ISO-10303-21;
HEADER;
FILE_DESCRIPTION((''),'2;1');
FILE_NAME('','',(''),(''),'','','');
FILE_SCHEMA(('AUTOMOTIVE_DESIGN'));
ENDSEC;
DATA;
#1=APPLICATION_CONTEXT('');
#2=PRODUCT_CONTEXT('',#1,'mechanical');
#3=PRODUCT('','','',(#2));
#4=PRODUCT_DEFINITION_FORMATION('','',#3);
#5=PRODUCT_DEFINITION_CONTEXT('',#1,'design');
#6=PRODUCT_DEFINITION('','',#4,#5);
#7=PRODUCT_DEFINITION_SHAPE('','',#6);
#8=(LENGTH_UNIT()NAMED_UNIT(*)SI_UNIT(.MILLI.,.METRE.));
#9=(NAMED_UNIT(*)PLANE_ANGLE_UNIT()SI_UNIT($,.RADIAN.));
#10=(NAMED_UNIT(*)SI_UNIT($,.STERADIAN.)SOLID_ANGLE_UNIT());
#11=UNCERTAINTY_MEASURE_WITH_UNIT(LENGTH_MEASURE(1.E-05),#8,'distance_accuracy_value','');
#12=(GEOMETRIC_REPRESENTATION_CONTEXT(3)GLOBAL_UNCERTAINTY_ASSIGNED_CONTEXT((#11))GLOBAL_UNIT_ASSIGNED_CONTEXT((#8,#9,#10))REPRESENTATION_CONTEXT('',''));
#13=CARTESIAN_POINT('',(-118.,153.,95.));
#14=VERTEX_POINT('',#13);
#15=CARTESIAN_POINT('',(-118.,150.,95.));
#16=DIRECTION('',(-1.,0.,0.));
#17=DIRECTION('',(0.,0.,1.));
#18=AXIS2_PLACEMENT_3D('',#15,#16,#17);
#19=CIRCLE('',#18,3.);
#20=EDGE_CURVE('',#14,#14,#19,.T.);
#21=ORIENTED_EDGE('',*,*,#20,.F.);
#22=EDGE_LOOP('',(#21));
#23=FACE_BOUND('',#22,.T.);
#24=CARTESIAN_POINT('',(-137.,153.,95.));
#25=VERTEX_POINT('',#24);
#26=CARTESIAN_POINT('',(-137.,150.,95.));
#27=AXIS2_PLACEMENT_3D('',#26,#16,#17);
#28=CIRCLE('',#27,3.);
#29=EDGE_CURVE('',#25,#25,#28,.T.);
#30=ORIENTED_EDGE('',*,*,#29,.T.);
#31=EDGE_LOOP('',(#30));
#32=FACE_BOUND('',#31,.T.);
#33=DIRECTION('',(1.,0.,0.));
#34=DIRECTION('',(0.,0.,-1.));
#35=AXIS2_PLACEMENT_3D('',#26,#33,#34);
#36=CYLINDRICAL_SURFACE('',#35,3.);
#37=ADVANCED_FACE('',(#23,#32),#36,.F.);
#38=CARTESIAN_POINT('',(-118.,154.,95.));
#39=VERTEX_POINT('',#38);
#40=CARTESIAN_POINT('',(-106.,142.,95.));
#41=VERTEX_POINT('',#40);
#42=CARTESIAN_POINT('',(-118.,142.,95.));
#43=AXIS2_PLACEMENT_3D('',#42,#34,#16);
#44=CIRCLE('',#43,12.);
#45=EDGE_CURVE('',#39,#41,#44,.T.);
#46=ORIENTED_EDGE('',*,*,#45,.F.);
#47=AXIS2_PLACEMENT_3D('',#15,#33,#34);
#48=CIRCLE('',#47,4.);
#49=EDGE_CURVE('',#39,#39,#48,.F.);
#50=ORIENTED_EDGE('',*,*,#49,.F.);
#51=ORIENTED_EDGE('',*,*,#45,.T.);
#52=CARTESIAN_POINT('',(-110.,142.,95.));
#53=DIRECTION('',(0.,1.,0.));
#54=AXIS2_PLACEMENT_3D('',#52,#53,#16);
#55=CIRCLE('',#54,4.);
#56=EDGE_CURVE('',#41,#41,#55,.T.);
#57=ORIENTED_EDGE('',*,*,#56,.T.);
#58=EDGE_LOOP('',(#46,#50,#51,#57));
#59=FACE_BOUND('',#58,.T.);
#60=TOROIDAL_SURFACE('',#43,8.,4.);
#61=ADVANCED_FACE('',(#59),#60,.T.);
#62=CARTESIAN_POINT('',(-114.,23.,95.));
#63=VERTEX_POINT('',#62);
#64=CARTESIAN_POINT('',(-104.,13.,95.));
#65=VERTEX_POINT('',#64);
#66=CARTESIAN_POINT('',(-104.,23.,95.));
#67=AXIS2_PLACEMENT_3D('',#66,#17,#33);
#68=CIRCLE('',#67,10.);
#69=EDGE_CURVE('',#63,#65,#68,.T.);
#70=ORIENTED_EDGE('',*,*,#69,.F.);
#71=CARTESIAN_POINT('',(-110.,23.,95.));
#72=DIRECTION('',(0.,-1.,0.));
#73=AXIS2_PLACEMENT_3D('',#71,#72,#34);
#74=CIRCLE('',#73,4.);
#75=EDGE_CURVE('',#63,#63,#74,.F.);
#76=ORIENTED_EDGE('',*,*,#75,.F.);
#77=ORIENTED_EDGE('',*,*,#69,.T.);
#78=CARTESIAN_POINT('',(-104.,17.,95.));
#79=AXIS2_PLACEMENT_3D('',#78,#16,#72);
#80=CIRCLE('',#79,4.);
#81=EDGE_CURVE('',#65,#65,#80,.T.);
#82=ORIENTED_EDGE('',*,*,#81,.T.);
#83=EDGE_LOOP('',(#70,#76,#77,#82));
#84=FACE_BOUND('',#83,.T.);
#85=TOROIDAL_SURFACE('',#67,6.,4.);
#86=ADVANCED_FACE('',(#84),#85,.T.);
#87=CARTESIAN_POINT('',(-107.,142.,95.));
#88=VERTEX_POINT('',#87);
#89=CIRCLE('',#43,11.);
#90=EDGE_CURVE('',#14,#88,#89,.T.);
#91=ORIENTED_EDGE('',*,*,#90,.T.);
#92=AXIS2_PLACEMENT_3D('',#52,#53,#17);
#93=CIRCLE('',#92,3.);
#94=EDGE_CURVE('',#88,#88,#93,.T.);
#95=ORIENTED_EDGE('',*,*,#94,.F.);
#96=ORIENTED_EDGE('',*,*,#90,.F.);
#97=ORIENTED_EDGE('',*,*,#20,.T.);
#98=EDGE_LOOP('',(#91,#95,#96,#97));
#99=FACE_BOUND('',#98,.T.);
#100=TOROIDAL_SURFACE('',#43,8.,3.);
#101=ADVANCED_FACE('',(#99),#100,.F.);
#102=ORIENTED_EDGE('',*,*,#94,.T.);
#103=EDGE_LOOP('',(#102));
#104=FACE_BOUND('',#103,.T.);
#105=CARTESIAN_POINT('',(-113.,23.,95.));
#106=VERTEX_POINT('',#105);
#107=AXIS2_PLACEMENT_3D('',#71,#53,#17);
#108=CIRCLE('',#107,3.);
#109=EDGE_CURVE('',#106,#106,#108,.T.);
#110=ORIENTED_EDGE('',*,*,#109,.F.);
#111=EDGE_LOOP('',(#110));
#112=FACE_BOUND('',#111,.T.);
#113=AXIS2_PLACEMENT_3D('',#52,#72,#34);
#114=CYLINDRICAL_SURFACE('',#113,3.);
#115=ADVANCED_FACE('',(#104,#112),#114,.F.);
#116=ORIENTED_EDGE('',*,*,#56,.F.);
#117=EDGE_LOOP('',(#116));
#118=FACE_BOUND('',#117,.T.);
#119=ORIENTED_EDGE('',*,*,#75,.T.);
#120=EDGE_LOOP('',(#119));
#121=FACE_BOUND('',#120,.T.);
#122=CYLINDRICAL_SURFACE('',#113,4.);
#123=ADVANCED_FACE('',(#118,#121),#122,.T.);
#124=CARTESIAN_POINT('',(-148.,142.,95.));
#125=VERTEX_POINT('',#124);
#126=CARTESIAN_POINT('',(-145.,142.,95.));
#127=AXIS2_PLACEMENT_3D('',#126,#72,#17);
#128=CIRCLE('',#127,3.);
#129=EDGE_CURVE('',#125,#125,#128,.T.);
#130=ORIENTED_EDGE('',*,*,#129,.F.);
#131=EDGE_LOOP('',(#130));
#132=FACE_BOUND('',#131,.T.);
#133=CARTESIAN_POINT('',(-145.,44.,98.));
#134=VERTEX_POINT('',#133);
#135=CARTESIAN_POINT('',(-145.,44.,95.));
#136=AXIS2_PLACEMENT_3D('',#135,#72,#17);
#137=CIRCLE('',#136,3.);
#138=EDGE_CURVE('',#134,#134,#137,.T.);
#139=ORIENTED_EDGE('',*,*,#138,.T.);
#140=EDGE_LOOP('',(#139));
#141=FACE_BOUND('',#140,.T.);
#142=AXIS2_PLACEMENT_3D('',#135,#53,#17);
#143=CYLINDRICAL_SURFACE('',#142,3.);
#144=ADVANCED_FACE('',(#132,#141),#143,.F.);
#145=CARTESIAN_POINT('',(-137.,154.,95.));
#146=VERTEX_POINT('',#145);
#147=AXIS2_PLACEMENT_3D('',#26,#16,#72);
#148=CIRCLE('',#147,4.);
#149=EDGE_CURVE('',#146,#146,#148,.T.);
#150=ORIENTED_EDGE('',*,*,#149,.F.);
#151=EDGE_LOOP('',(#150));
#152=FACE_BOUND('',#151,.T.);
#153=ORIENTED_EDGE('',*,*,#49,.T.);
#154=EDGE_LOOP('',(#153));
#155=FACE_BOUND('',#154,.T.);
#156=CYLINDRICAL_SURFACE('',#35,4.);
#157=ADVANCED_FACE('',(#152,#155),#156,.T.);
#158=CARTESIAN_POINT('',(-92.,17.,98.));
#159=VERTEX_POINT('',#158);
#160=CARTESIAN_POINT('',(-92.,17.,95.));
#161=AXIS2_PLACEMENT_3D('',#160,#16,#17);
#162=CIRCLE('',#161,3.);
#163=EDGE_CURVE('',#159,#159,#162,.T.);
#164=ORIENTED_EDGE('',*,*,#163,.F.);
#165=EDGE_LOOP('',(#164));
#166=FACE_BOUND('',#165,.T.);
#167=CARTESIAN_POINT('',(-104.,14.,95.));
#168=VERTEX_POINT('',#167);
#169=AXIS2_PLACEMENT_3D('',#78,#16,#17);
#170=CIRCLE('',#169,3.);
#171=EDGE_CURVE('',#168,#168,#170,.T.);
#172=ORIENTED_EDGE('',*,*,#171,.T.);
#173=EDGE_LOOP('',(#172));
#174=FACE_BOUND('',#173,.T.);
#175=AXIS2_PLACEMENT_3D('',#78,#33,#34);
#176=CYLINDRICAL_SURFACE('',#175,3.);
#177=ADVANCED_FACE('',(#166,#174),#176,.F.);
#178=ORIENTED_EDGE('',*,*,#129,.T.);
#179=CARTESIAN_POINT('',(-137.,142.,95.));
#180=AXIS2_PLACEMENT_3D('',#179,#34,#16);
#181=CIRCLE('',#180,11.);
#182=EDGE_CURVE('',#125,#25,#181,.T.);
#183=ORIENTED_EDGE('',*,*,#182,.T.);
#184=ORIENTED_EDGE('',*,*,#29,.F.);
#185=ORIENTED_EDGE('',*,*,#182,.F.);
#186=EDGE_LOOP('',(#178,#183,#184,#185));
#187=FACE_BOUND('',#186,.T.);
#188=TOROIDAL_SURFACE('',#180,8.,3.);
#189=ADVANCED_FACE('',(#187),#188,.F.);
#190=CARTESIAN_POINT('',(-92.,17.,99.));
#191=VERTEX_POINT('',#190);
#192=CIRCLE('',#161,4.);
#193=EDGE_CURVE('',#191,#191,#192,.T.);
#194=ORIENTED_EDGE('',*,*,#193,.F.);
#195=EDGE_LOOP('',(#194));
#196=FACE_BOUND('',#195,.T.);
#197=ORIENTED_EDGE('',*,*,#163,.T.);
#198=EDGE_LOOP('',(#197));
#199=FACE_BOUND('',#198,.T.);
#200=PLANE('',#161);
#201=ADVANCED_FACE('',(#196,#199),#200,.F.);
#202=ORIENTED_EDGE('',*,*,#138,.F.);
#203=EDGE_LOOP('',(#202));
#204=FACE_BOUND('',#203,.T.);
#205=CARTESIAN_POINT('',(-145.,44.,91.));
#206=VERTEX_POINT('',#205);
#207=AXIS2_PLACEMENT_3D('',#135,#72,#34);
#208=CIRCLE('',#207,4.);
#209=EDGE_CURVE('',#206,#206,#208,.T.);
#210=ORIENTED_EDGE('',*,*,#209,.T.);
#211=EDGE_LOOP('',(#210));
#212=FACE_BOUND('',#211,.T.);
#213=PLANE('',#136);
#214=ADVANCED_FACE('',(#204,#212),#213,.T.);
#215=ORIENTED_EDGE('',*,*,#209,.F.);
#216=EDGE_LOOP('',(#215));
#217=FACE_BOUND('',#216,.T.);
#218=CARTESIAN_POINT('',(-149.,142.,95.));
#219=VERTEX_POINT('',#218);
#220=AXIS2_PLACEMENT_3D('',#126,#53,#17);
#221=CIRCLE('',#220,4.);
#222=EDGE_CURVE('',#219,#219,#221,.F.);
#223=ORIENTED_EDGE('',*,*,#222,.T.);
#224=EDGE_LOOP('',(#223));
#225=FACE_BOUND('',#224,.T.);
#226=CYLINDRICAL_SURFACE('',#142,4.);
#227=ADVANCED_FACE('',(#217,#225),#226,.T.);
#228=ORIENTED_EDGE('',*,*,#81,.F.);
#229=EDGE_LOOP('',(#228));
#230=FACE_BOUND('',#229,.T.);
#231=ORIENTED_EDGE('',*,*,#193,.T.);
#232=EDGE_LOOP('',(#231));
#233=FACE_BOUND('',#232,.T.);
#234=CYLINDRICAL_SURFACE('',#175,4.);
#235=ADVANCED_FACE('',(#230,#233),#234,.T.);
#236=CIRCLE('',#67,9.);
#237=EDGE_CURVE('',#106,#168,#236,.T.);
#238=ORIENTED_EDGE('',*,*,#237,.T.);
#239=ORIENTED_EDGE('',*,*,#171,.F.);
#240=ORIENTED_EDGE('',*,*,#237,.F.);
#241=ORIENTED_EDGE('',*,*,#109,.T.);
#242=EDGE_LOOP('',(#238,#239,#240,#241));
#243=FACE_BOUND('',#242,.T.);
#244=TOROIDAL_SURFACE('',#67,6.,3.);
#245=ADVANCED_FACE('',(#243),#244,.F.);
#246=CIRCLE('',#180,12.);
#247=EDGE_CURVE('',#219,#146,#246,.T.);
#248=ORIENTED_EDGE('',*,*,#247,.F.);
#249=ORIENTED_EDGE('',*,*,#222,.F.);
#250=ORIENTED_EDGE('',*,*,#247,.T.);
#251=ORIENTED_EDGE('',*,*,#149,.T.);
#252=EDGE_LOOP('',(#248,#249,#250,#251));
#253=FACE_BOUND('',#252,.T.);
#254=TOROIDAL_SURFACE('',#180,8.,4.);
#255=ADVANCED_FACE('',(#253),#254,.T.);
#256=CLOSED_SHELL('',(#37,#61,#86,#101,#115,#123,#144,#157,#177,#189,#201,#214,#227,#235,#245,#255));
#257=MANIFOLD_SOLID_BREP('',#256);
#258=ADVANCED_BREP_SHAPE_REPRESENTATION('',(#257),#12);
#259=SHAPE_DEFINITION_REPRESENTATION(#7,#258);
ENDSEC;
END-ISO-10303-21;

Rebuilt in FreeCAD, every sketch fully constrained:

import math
import FreeCAD as App
import Part
import Sketcher

doc = App.newDocument("Part")
params = doc.addObject("Spreadsheet::Sheet", "Params")
for row, (alias, value) in enumerate([
    ("sketch1_diameter", "8 mm"),
    ("sketch1_diameter2", "6 mm"),
    ("sketch2_radius", "8 mm"),
    ("sketch2_radius2", "6 mm"),
    ("sketch2_width", "19 mm"),
    ("sketch2_width2", "12 mm"),
    ("sketch2_height", "98 mm"),
], start=1):
    params.set(f"A{row}", alias)
    params.set(f"B{row}", "=" + value)
    params.setAlias(f"B{row}", alias)

body = doc.addObject("PartDesign::Body", "Body")

# Sketch on XZ plane
sketch1 = body.newObject("Sketcher::SketchObject", "Sketch")
sketch1.AttachmentSupport = (doc.getObject("XZ_Plane"), [""])
sketch1.MapMode = "FlatFace"
sketch1.AttachmentOffset = App.Placement(App.Vector(0, 0, -44), App.Rotation())
sketch1.addGeometry([
    Part.Circle(App.Vector(-145, 95, 0), App.Vector(0, 0, 1), 4),
    Part.Circle(App.Vector(-145, 95, 0), App.Vector(0, 0, 1), 3),
], False)
sketch1.addConstraint([
    Sketcher.Constraint("Coincident", 1, 3, 0, 3),
    Sketcher.Constraint("Diameter", 0, 8.0),
    Sketcher.Constraint("Diameter", 1, 6.0),
    Sketcher.Constraint("DistanceX", 0, 3, -1, 1, 145.0),
    Sketcher.Constraint("DistanceY", -1, 1, 0, 3, 95.0),
])
sketch1.setExpression("Constraints[1]", "Params.sketch1_diameter")
sketch1.setExpression("Constraints[2]", "Params.sketch1_diameter2")

# Sketch on XY plane
sketch2 = body.newObject("Sketcher::SketchObject", "Sketch001")
sketch2.AttachmentSupport = (doc.getObject("XY_Plane"), [""])
sketch2.MapMode = "FlatFace"
sketch2.AttachmentOffset = App.Placement(App.Vector(0, 0, 95), App.Rotation())
sketch2.addGeometry([
    Part.LineSegment(App.Vector(-145, 44, 0), App.Vector(-145, 142, 0)),  # 0
    Part.ArcOfCircle(Part.Circle(App.Vector(-137, 142, 0), App.Vector(0, 0, 1), 8), math.radians(90), math.radians(180)),  # 1
    Part.LineSegment(App.Vector(-137, 150, 0), App.Vector(-118, 150, 0)),  # 2
    Part.ArcOfCircle(Part.Circle(App.Vector(-118, 142, 0), App.Vector(0, 0, 1), 8), math.radians(0), math.radians(90)),  # 3
    Part.LineSegment(App.Vector(-110, 142, 0), App.Vector(-110, 23, 0)),  # 4
    Part.ArcOfCircle(Part.Circle(App.Vector(-104, 23, 0), App.Vector(0, 0, 1), 6), math.radians(180), math.radians(270)),  # 5
    Part.LineSegment(App.Vector(-104, 17, 0), App.Vector(-92, 17, 0)),  # 6
], False)
sketch2.addConstraint([
    Sketcher.Constraint("Tangent", 0, 2, 1, 2),
    Sketcher.Constraint("Tangent", 1, 1, 2, 1),
    Sketcher.Constraint("Tangent", 2, 2, 3, 2),
    Sketcher.Constraint("Tangent", 3, 1, 4, 1),
    Sketcher.Constraint("Tangent", 4, 2, 5, 1),
    Sketcher.Constraint("Tangent", 5, 2, 6, 1),
    Sketcher.Constraint("Vertical", 0),
    Sketcher.Constraint("Horizontal", 2),
    Sketcher.Constraint("Vertical", 4),
    Sketcher.Constraint("Horizontal", 6),
    Sketcher.Constraint("Equal", 1, 3),
    Sketcher.Constraint("Radius", 1, 8.0),
    Sketcher.Constraint("Radius", 5, 6.0),
    Sketcher.Constraint("DistanceX", 2, 1, 2, 2, 19.0),
    Sketcher.Constraint("DistanceX", 6, 1, 6, 2, 12.0),
    Sketcher.Constraint("DistanceY", 0, 1, 0, 2, 98.0),
    Sketcher.Constraint("DistanceY", 4, 2, 4, 1, 119.0),
    Sketcher.Constraint("DistanceX", 1, 3, -1, 1, 137.0),
    Sketcher.Constraint("DistanceY", -1, 1, 1, 3, 142.0),
])
sketch2.setExpression("Constraints[11]", "Params.sketch2_radius")
sketch2.setExpression("Constraints[12]", "Params.sketch2_radius2")
sketch2.setExpression("Constraints[13]", "Params.sketch2_width")
sketch2.setExpression("Constraints[14]", "Params.sketch2_width2")
sketch2.setExpression("Constraints[15]", "Params.sketch2_height")
doc.recompute()

additivepipe = body.newObject("PartDesign::AdditivePipe", "AdditivePipe")
additivepipe.Profile = sketch1
additivepipe.Spine = (sketch2, ["Edge1", "Edge2", "Edge3", "Edge4", "Edge5", "Edge6", "Edge7"])

doc.recompute()
